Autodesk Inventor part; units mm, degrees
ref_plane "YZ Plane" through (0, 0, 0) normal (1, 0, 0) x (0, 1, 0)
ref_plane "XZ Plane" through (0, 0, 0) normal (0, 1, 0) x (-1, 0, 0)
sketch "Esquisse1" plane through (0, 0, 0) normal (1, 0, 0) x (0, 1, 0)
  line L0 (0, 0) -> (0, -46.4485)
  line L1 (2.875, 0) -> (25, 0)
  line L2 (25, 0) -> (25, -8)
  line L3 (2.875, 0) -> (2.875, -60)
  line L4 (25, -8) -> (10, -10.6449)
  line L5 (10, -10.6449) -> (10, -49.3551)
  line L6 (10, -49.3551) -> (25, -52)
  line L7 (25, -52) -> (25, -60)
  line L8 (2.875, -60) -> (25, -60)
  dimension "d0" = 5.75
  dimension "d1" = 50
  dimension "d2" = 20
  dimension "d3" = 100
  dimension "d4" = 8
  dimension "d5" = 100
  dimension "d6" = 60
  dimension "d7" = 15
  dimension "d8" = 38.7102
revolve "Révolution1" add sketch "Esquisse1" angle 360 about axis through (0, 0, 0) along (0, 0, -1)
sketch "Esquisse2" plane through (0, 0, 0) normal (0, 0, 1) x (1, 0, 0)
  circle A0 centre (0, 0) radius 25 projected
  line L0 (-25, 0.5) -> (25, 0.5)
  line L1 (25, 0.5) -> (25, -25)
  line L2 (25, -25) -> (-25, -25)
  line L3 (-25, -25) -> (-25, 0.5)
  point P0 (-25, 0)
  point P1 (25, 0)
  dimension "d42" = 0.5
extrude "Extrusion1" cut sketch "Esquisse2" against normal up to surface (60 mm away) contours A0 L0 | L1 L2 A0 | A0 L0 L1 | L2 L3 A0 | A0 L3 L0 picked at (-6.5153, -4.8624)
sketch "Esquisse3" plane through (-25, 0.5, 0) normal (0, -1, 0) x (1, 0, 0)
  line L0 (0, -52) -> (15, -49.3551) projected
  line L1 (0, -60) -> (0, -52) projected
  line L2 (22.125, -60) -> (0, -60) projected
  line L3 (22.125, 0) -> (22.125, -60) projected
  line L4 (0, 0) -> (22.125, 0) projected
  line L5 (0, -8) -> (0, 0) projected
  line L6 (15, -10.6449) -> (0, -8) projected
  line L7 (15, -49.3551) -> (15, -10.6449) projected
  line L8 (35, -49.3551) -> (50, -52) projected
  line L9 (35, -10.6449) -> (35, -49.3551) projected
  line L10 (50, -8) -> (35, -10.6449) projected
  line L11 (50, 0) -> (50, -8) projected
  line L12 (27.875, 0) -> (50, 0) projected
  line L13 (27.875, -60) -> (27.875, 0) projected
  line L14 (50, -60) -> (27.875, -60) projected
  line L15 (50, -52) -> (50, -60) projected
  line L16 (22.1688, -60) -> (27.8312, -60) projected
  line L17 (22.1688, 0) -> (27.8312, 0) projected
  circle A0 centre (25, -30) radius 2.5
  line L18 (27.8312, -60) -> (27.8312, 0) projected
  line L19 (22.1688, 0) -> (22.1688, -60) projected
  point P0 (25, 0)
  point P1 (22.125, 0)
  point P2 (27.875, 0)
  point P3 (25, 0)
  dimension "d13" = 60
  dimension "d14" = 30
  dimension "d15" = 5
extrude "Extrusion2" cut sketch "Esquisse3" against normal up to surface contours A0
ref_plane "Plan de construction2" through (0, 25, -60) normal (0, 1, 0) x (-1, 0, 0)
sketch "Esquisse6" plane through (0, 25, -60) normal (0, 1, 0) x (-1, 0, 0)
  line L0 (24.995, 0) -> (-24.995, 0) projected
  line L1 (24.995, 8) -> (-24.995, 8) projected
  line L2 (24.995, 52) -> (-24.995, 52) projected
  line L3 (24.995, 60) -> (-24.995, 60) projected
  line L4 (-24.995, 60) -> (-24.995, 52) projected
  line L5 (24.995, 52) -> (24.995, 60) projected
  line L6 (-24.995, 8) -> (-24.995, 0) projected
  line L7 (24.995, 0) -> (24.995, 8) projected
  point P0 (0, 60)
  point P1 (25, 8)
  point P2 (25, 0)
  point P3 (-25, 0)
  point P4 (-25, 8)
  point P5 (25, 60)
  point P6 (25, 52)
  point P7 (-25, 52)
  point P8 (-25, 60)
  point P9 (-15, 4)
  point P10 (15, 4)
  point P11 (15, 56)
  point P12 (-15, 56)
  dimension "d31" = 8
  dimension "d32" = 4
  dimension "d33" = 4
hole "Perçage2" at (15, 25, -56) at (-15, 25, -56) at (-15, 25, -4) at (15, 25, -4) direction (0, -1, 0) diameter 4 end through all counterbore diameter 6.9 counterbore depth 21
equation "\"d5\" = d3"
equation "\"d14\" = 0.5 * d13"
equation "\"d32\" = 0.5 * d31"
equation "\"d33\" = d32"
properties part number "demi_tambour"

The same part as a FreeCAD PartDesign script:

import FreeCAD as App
import Part
import Sketcher

V = App.Vector
Q = App.Units.Quantity

doc = App.newDocument("Part")
body = doc.addObject("PartDesign::Body", "Body")

sketch1 = body.newObject("Sketcher::SketchObject", "Sketch")
sketch1.AttachmentSupport = (doc.getObject("YZ_Plane"), [""])
sketch1.MapMode = "FlatFace"
sketch1.addGeometry(Part.LineSegment(V(25, 0, 0), V(2.875, 0, 0)), False)
sketch1.addGeometry(Part.LineSegment(V(2.875, 0, 0), V(2.875, -60, 0)), False)
sketch1.addGeometry(Part.LineSegment(V(2.875, -60, 0), V(25, -60, 0)), False)
sketch1.addGeometry(Part.LineSegment(V(25, -60, 0), V(25, -52, 0)), False)
sketch1.addGeometry(Part.LineSegment(V(25, -52, 0), V(10, -49.3551, 0)), False)
sketch1.addGeometry(Part.LineSegment(V(10, -49.3551, 0), V(10, -10.6449, 0)), False)
sketch1.addGeometry(Part.LineSegment(V(10, -10.6449, 0), V(25, -8, 0)), False)
sketch1.addGeometry(Part.LineSegment(V(25, -8, 0), V(25, 0, 0)), False)
sketch1.addConstraint(Sketcher.Constraint("Coincident", 0, 2, 1, 1))
sketch1.addConstraint(Sketcher.Constraint("Coincident", 1, 2, 2, 1))
sketch1.addConstraint(Sketcher.Constraint("Coincident", 2, 2, 3, 1))
sketch1.addConstraint(Sketcher.Constraint("Coincident", 3, 2, 4, 1))
sketch1.addConstraint(Sketcher.Constraint("Coincident", 4, 2, 5, 1))
sketch1.addConstraint(Sketcher.Constraint("Coincident", 5, 2, 6, 1))
sketch1.addConstraint(Sketcher.Constraint("Coincident", 6, 2, 7, 1))
sketch1.addConstraint(Sketcher.Constraint("Coincident", 7, 2, 0, 1))
sketch1.addConstraint(Sketcher.Constraint("Horizontal", 0))
sketch1.addConstraint(Sketcher.Constraint("Vertical", 1))
sketch1.addConstraint(Sketcher.Constraint("Horizontal", 2))
sketch1.addConstraint(Sketcher.Constraint("Vertical", 3))
sketch1.addConstraint(Sketcher.Constraint("Vertical", 5))
sketch1.addConstraint(Sketcher.Constraint("Vertical", 7))
sketch1.addConstraint(Sketcher.Constraint("PointOnObject", 0, 2, -1))
sketch1.addConstraint(Sketcher.Constraint("Vertical", 3, 2, 6, 2))
sketch1.addConstraint(Sketcher.Constraint("Equal", 3, 7))
sketch1.addConstraint(Sketcher.Constraint("Equal", 4, 6))
sketch1.addConstraint(Sketcher.Constraint("DistanceY", 1, 2, 1, 1, 60.0))
sketch1.addConstraint(Sketcher.Constraint("DistanceY", 3, 1, 3, 2, 8.0))
sketch1.addConstraint(Sketcher.Constraint("DistanceX", 4, 2, 3, 2, 15.0))
sketch1.addConstraint(Sketcher.Constraint("Angle", 4, Q("170 deg")))
sketch1.addConstraint(Sketcher.Constraint("DistanceX", -1, 1, 2, 2, 25.0))
sketch1.addConstraint(Sketcher.Constraint("DistanceX", 0, 2, 0, 1, 22.125))
revolution = body.newObject("PartDesign::Revolution", "Revolution")
revolution.Profile = sketch1
revolution.ReferenceAxis = (sketch1, ["V_Axis"])
revolution.Angle = 360

sketch2 = body.newObject("Sketcher::SketchObject", "Sketch001")
sketch2.AttachmentSupport = (doc.getObject("XY_Plane"), [""])
sketch2.MapMode = "FlatFace"
sketch2.addGeometry(Part.LineSegment(V(-25, 0.5, 0), V(-25, -25, 0)), False)
sketch2.addGeometry(Part.LineSegment(V(-25, -25, 0), V(25, -25, 0)), False)
sketch2.addGeometry(Part.LineSegment(V(25, -25, 0), V(25, 0.5, 0)), False)
sketch2.addGeometry(Part.LineSegment(V(25, 0.5, 0), V(-25, 0.5, 0)), False)
sketch2.addConstraint(Sketcher.Constraint("Coincident", 0, 2, 1, 1))
sketch2.addConstraint(Sketcher.Constraint("Coincident", 1, 2, 2, 1))
sketch2.addConstraint(Sketcher.Constraint("Coincident", 2, 2, 3, 1))
sketch2.addConstraint(Sketcher.Constraint("Coincident", 3, 2, 0, 1))
sketch2.addConstraint(Sketcher.Constraint("Vertical", 0))
sketch2.addConstraint(Sketcher.Constraint("Horizontal", 1))
sketch2.addConstraint(Sketcher.Constraint("Vertical", 2))
sketch2.addConstraint(Sketcher.Constraint("Horizontal", 3))
sketch2.addConstraint(Sketcher.Constraint("DistanceY", -1, 1, 2, 2, 0.5))
sketch2.addConstraint(Sketcher.Constraint("DistanceX", 1, 1, 1, 2, 50.0))
sketch2.addConstraint(Sketcher.Constraint("DistanceY", 0, 2, 0, 1, 25.5))
sketch2.addConstraint(Sketcher.Constraint("DistanceX", 0, 2, -1, 1, 25.0))
pocket1 = body.newObject("PartDesign::Pocket", "Pocket")
pocket1.Profile = sketch2
pocket1.Length = 60

sketch3 = body.newObject("Sketcher::SketchObject", "Sketch002")
sketch3.AttachmentSupport = (doc.getObject("XZ_Plane"), [""])
sketch3.MapMode = "FlatFace"
sketch3.AttachmentOffset = App.Placement(V(0, 0, -0.5), App.Rotation())
sketch3.addGeometry(Part.Circle(V(0, -30, 0), V(0, 0, 1), 2.5), False)
sketch3.addConstraint(Sketcher.Constraint("PointOnObject", 0, 3, -2))
sketch3.addConstraint(Sketcher.Constraint("Diameter", 0, 5.0))
sketch3.addConstraint(Sketcher.Constraint("DistanceY", 0, 3, -1, 1, 30.0))
pocket2 = body.newObject("PartDesign::Pocket", "Pocket001")
pocket2.Profile = sketch3
pocket2.Length = 9.5

sketch4 = body.newObject("Sketcher::SketchObject", "Sketch003")
sketch4.AttachmentSupport = (doc.getObject("XZ_Plane"), [""])
sketch4.MapMode = "FlatFace"
sketch4.AttachmentOffset = App.Placement(V(0, 0, -25), App.Rotation())
sketch4.addGeometry(Part.Circle(V(15, -56, 0), V(0, 0, 1), 2), False)
sketch4.addGeometry(Part.Circle(V(-15, -56, 0), V(0, 0, 1), 2), False)
sketch4.addGeometry(Part.Circle(V(-15, -4, 0), V(0, 0, 1), 2), False)
sketch4.addGeometry(Part.Circle(V(15, -4, 0), V(0, 0, 1), 2), False)
sketch4.addConstraint(Sketcher.Constraint("Equal", 0, 1))
sketch4.addConstraint(Sketcher.Constraint("Equal", 1, 2))
sketch4.addConstraint(Sketcher.Constraint("Equal", 2, 3))
sketch4.addConstraint(Sketcher.Constraint("Symmetric", 0, 3, 1, 3, -2))
sketch4.addConstraint(Sketcher.Constraint("Symmetric", 2, 3, 3, 3, -2))
sketch4.addConstraint(Sketcher.Constraint("Vertical", 1, 3, 2, 3))
sketch4.addConstraint(Sketcher.Constraint("Diameter", 0, 4.0))
sketch4.addConstraint(Sketcher.Constraint("DistanceX", -1, 1, 0, 3, 15.0))
sketch4.addConstraint(Sketcher.Constraint("DistanceY", 0, 3, -1, 1, 56.0))
sketch4.addConstraint(Sketcher.Constraint("DistanceY", 2, 3, -1, 1, 4.0))
doc.recompute()
hole = body.newObject("PartDesign::Hole", "Hole")
hole.Profile = sketch4
hole.ThreadType = "None"
hole.Diameter = 4
hole.DepthType = "ThroughAll"
hole.HoleCutType = "Counterbore"
hole.HoleCutDiameter = 6.9
hole.HoleCutDepth = 21
hole.Reversed = True

doc.recompute()
